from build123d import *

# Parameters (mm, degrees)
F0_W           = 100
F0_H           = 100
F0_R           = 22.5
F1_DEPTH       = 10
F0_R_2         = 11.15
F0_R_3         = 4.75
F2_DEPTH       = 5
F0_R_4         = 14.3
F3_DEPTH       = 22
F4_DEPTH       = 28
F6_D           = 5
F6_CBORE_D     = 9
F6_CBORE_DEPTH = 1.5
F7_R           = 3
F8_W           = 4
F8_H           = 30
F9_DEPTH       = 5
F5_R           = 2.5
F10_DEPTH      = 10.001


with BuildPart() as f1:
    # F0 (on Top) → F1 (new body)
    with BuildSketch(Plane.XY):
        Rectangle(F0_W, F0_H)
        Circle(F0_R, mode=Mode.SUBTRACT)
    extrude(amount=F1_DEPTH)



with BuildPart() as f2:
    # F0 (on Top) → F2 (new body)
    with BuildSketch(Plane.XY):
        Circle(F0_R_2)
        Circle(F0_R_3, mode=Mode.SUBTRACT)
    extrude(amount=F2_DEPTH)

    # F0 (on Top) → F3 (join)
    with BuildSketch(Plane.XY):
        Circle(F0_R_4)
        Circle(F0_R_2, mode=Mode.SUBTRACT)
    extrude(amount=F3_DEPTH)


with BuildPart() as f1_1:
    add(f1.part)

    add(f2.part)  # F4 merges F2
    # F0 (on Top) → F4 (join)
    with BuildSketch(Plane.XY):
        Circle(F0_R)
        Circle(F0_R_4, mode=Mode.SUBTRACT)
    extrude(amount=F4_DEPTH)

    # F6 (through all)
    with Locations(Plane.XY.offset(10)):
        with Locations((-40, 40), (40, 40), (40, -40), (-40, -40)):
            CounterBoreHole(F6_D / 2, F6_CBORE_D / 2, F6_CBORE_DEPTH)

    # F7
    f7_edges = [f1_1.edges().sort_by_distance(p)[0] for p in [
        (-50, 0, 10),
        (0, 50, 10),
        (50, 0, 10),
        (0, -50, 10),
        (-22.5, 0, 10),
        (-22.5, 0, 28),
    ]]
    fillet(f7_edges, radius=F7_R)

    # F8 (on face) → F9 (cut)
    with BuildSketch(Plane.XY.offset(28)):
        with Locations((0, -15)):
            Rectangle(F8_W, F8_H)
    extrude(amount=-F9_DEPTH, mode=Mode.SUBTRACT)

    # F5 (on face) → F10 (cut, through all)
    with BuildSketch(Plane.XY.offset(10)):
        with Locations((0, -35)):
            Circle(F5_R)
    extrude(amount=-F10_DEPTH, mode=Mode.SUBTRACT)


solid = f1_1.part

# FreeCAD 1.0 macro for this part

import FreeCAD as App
import Part
import Sketcher


def edges_at(feature, points):
    """Names of the edges that pass closest to the given points."""
    edges = feature.Shape.Edges
    near = lambda p: min(range(len(edges)), key=lambda i: edges[i].distToShape(Part.Vertex(*p))[0])
    return sorted({f"Edge{near(p) + 1}" for p in points})


def add_polygon(sketch, points):
    """Adds a closed chain of lines whose ends are joined by coincident constraints."""
    first, n = sketch.GeometryCount, len(points)
    for a, b in zip(points, points[1:] + points[:1]):
        sketch.addGeometry(Part.LineSegment(App.Vector(*a, 0), App.Vector(*b, 0)), False)
    for i in range(n):
        sketch.addConstraint(Sketcher.Constraint("Coincident", first + i, 2, first + (i + 1) % n, 1))

doc = App.newDocument("Part")
params = doc.addObject("Spreadsheet::Sheet", "Params")
for row, (alias, value) in enumerate([
    ("sketch1_diameter", "45 mm"),
    ("sketch1_width", "100 mm"),
    ("pad1_length", "10 mm"),
    ("sketch2_diameter", "22.3 mm"),
    ("sketch2_diameter2", "9.5 mm"),
    ("pad2_length", "5 mm"),
    ("sketch3_diameter", "28.6 mm"),
    ("sketch3_diameter2", "22.3 mm"),
    ("pad3_length", "22 mm"),
    ("sketch4_diameter", "45 mm"),
    ("sketch4_diameter2", "28.6 mm"),
    ("pad4_length", "28 mm"),
    ("sketch5_diameter", "5 mm"),
    ("hole_diameter", "5 mm"),
    ("hole_cbore_diameter", "9 mm"),
    ("hole_cbore_depth", "1.5 mm"),
    ("fillet_radius", "3 mm"),
    ("sketch6_width", "4 mm"),
    ("sketch6_height", "30 mm"),
    ("pocket1_length", "5 mm"),
    ("sketch7_diameter", "5 mm"),
], start=1):
    params.set(f"A{row}", alias)
    params.set(f"B{row}", "=" + value)
    params.setAlias(f"B{row}", alias)

body = doc.addObject("PartDesign::Body", "Body")

sketch1 = body.newObject("Sketcher::SketchObject", "Sketch")
sketch1.AttachmentSupport = (doc.getObject("XY_Plane"), [""])
sketch1.MapMode = "FlatFace"
add_polygon(sketch1, [(-50, 50), (-50, -50), (50, -50), (50, 50)])
sketch1.addGeometry(Part.Circle(App.Vector(0, 0, 0), App.Vector(0, 0, 1), 22), False)
sketch1.addConstraint(Sketcher.Constraint("Vertical", 0))
sketch1.addConstraint(Sketcher.Constraint("Horizontal", 1))
sketch1.addConstraint(Sketcher.Constraint("Vertical", 2))
sketch1.addConstraint(Sketcher.Constraint("Horizontal", 3))
sketch1.addConstraint(Sketcher.Constraint("Coincident", 4, 3, -1, 1))
sketch1.addConstraint(Sketcher.Constraint("Symmetric", 0, 2, 2, 2, -1, 1))
sketch1.addConstraint(Sketcher.Constraint("Equal", 3, 0))
sketch1.addConstraint(Sketcher.Constraint("Diameter", 4, 45.0))
sketch1.addConstraint(Sketcher.Constraint("DistanceX", 1, 1, 1, 2, 100.0))
sketch1.setExpression("Constraints[11]", "Params.sketch1_diameter")
sketch1.setExpression("Constraints[12]", "Params.sketch1_width")
pad1 = body.newObject("PartDesign::Pad", "Pad")
pad1.Profile = sketch1
pad1.setExpression("Length", "Params.pad1_length")
body2 = doc.addObject("PartDesign::Body", "Body001")

sketch2 = body2.newObject("Sketcher::SketchObject", "Sketch001")
sketch2.AttachmentSupport = (doc.getObject("XY_Plane001"), [""])
sketch2.MapMode = "FlatFace"
sketch2.addGeometry(Part.Circle(App.Vector(0, 0, 0), App.Vector(0, 0, 1), 11.2), False)
sketch2.addGeometry(Part.Circle(App.Vector(0, 0, 0), App.Vector(0, 0, 1), 4.8), False)
sketch2.addConstraint(Sketcher.Constraint("Coincident", 0, 3, -1, 1))
sketch2.addConstraint(Sketcher.Constraint("Coincident", 1, 3, -1, 1))
sketch2.addConstraint(Sketcher.Constraint("Diameter", 0, 22.3))
sketch2.addConstraint(Sketcher.Constraint("Diameter", 1, 9.5))
sketch2.setExpression("Constraints[2]", "Params.sketch2_diameter")
sketch2.setExpression("Constraints[3]", "Params.sketch2_diameter2")
pad2 = body2.newObject("PartDesign::Pad", "Pad001")
pad2.Profile = sketch2
pad2.setExpression("Length", "Params.pad2_length")

sketch3 = body2.newObject("Sketcher::SketchObject", "Sketch002")
sketch3.AttachmentSupport = (doc.getObject("XY_Plane001"), [""])
sketch3.MapMode = "FlatFace"
sketch3.addGeometry(Part.Circle(App.Vector(0, 0, 0), App.Vector(0, 0, 1), 14), False)
sketch3.addGeometry(Part.Circle(App.Vector(0, 0, 0), App.Vector(0, 0, 1), 11), False)
sketch3.addConstraint(Sketcher.Constraint("Coincident", 0, 3, -1, 1))
sketch3.addConstraint(Sketcher.Constraint("Coincident", 1, 3, -1, 1))
sketch3.addConstraint(Sketcher.Constraint("Diameter", 0, 28.6))
sketch3.addConstraint(Sketcher.Constraint("Diameter", 1, 22.3))
sketch3.setExpression("Constraints[2]", "Params.sketch3_diameter")
sketch3.setExpression("Constraints[3]", "Params.sketch3_diameter2")
pad3 = body2.newObject("PartDesign::Pad", "Pad002")
pad3.Profile = sketch3
pad3.setExpression("Length", "Params.pad3_length")
body.AllowCompound = True
doc.recompute()

boolean = body.newObject("PartDesign::Boolean", "Boolean")
boolean.Type = "Fuse"
boolean.addObjects([body2])

sketch4 = body.newObject("Sketcher::SketchObject", "Sketch003")
sketch4.AttachmentSupport = (doc.getObject("XY_Plane"), [""])
sketch4.MapMode = "FlatFace"
sketch4.addGeometry(Part.Circle(App.Vector(0, 0, 0), App.Vector(0, 0, 1), 22), False)
sketch4.addGeometry(Part.Circle(App.Vector(0, 0, 0), App.Vector(0, 0, 1), 14), False)
sketch4.addConstraint(Sketcher.Constraint("Coincident", 0, 3, -1, 1))
sketch4.addConstraint(Sketcher.Constraint("Coincident", 1, 3, -1, 1))
sketch4.addConstraint(Sketcher.Constraint("Diameter", 0, 45.0))
sketch4.addConstraint(Sketcher.Constraint("Diameter", 1, 28.6))
sketch4.setExpression("Constraints[2]", "Params.sketch4_diameter")
sketch4.setExpression("Constraints[3]", "Params.sketch4_diameter2")
pad4 = body.newObject("PartDesign::Pad", "Pad003")
pad4.Profile = sketch4
pad4.setExpression("Length", "Params.pad4_length")

sketch5 = body.newObject("Sketcher::SketchObject", "Sketch004")
sketch5.AttachmentSupport = (doc.getObject("XY_Plane"), [""])
sketch5.MapMode = "FlatFace"
sketch5.AttachmentOffset = App.Placement(App.Vector(0, 0, 10), App.Rotation())
sketch5.addGeometry(Part.Circle(App.Vector(-40, 40, 0), App.Vector(0, 0, 1), 2.5), False)
sketch5.addGeometry(Part.Circle(App.Vector(40, 40, 0), App.Vector(0, 0, 1), 2.5), False)
sketch5.addGeometry(Part.Circle(App.Vector(40, -40, 0), App.Vector(0, 0, 1), 2.5), False)
sketch5.addGeometry(Part.Circle(App.Vector(-40, -40, 0), App.Vector(0, 0, 1), 2.5), False)
sketch5.addConstraint(Sketcher.Constraint("Equal", 0, 1))
sketch5.addConstraint(Sketcher.Constraint("Equal", 1, 2))
sketch5.addConstraint(Sketcher.Constraint("Equal", 2, 3))
sketch5.addConstraint(Sketcher.Constraint("Symmetric", 0, 3, 2, 3, -1, 1))
sketch5.addConstraint(Sketcher.Constraint("Symmetric", 1, 3, 3, 3, -1, 1))
sketch5.addConstraint(Sketcher.Constraint("Symmetric", 0, 3, 1, 3, -2))
sketch5.addConstraint(Sketcher.Constraint("Diameter", 0, 5.0))
sketch5.addConstraint(Sketcher.Constraint("DistanceX", 0, 3, -1, 1, 40.0))
sketch5.addConstraint(Sketcher.Constraint("DistanceY", -1, 1, 0, 3, 40.0))
sketch5.setExpression("Constraints[6]", "Params.sketch5_diameter")
doc.recompute()
hole = body.newObject("PartDesign::Hole", "Hole")
hole.Profile = sketch5
hole.ThreadType = "None"
hole.setExpression("Diameter", "Params.hole_diameter")
hole.DepthType = "ThroughAll"
hole.HoleCutType = "Counterbore"
hole.setExpression("HoleCutDiameter", "Params.hole_cbore_diameter")
hole.setExpression("HoleCutDepth", "Params.hole_cbore_depth")
doc.recompute()

fillet = body.newObject("PartDesign::Fillet", "Fillet")
fillet.Base = (hole, edges_at(hole, [
    (-50, 0, 10),
    (0, 50, 10),
    (50, 0, 10),
    (0, -50, 10),
    (-22.5, 0, 10),
    (-22.5, 0, 28),
]))
fillet.setExpression("Radius", "Params.fillet_radius")

sketch6 = body.newObject("Sketcher::SketchObject", "Sketch005")
sketch6.AttachmentSupport = (doc.getObject("XY_Plane"), [""])
sketch6.MapMode = "FlatFace"
sketch6.AttachmentOffset = App.Placement(App.Vector(0, 0, 28), App.Rotation())
add_polygon(sketch6, [(-2, 0), (-2, -30), (2, -30), (2, 0)])
sketch6.addConstraint(Sketcher.Constraint("Vertical", 0))
sketch6.addConstraint(Sketcher.Constraint("Horizontal", 1))
sketch6.addConstraint(Sketcher.Constraint("Vertical", 2))
sketch6.addConstraint(Sketcher.Constraint("Horizontal", 3))
sketch6.addConstraint(Sketcher.Constraint("Symmetric", 2, 2, 3, 2, -1, 1))
sketch6.addConstraint(Sketcher.Constraint("DistanceX", 1, 1, 1, 2, 4.0))
sketch6.addConstraint(Sketcher.Constraint("DistanceY", 0, 2, 0, 1, 30.0))
sketch6.setExpression("Constraints[9]", "Params.sketch6_width")
sketch6.setExpression("Constraints[10]", "Params.sketch6_height")
pocket1 = body.newObject("PartDesign::Pocket", "Pocket")
pocket1.Profile = sketch6
pocket1.setExpression("Length", "Params.pocket1_length")

sketch7 = body.newObject("Sketcher::SketchObject", "Sketch006")
sketch7.AttachmentSupport = (doc.getObject("XY_Plane"), [""])
sketch7.MapMode = "FlatFace"
sketch7.AttachmentOffset = App.Placement(App.Vector(0, 0, 10), App.Rotation())
sketch7.addGeometry(Part.Circle(App.Vector(0, -35, 0), App.Vector(0, 0, 1), 2.5), False)
sketch7.addConstraint(Sketcher.Constraint("PointOnObject", 0, 3, -2))
sketch7.addConstraint(Sketcher.Constraint("Diameter", 0, 5.0))
sketch7.addConstraint(Sketcher.Constraint("DistanceY", 0, 3, -1, 1, 35.0))
sketch7.setExpression("Constraints[1]", "Params.sketch7_diameter")
pocket2 = body.newObject("PartDesign::Pocket", "Pocket001")
pocket2.Profile = sketch7
pocket2.Type = "ThroughAll"

doc.recompute()
